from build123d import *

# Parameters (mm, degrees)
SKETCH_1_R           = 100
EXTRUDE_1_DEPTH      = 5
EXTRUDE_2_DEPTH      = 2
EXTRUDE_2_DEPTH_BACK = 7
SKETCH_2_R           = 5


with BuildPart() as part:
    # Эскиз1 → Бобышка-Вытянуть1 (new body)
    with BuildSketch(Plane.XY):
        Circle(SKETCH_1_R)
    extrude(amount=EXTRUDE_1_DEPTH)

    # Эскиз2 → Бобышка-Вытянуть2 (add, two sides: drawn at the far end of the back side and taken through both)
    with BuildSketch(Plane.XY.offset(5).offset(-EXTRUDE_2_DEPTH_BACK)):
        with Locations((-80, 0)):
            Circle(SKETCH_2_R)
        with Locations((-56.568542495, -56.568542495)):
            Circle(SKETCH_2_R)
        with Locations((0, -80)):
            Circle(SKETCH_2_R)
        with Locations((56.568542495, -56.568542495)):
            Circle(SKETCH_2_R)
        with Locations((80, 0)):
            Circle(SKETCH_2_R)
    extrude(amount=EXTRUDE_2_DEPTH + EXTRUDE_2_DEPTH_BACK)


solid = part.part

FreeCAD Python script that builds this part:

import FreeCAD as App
import Part
import Sketcher
Q = App.Units.Quantity

doc = App.newDocument("Part")
body = doc.addObject("PartDesign::Body", "Body")

# Sketch on XY plane
sketch1 = doc.addObject("Sketcher::SketchObject", "Sketch")
body.addObject(sketch1)
sketch1.AttachmentSupport = (doc.XY_Plane, [""])
sketch1.MapMode = "FlatFace"
sketch1.addGeometry(Part.Circle(App.Vector(0, 0, 0), App.Vector(0, 0, 1), 100), False)
sketch1.addConstraint(Sketcher.Constraint("Coincident", 0, 3, -1, 1))
sketch1.addConstraint(Sketcher.Constraint("Diameter", 0, Q("200 mm")))
pad1 = doc.addObject("PartDesign::Pad", "Pad")
body.addObject(pad1)
pad1.Profile = sketch1
pad1.Length = 5

# Sketch on XY plane
sketch2 = doc.addObject("Sketcher::SketchObject", "Sketch001")
body.addObject(sketch2)
sketch2.AttachmentSupport = (doc.XY_Plane, [""])
sketch2.MapMode = "FlatFace"
sketch2.AttachmentOffset = App.Placement(App.Vector(0, 0, 5), App.Rotation())
sketch2.addGeometry(Part.Circle(App.Vector(-80, 0, 0), App.Vector(0, 0, 1), 5), False)
sketch2.addGeometry(Part.Circle(App.Vector(-57, -57, 0), App.Vector(0, 0, 1), 5), False)
sketch2.addGeometry(Part.Circle(App.Vector(0, -80, 0), App.Vector(0, 0, 1), 5), False)
sketch2.addGeometry(Part.Circle(App.Vector(57, -57, 0), App.Vector(0, 0, 1), 5), False)
sketch2.addGeometry(Part.Circle(App.Vector(80, 0, 0), App.Vector(0, 0, 1), 5), False)
sketch2.addConstraint(Sketcher.Constraint("Equal", 0, 1))
sketch2.addConstraint(Sketcher.Constraint("Equal", 1, 2))
sketch2.addConstraint(Sketcher.Constraint("Equal", 2, 3))
sketch2.addConstraint(Sketcher.Constraint("Equal", 3, 4))
sketch2.addConstraint(Sketcher.Constraint("Symmetric", 0, 3, 4, 3, -1, 1))
sketch2.addConstraint(Sketcher.Constraint("Symmetric", 1, 3, 3, 3, -2))
sketch2.addConstraint(Sketcher.Constraint("PointOnObject", 0, 3, -1))
sketch2.addConstraint(Sketcher.Constraint("PointOnObject", 2, 3, -2))
sketch2.addConstraint(Sketcher.Constraint("Diameter", 0, Q("10 mm")))
sketch2.addConstraint(Sketcher.Constraint("DistanceX", 0, 3, -1, 1, Q("80 mm")))
sketch2.addConstraint(Sketcher.Constraint("DistanceY", 2, 3, -1, 1, Q("80 mm")))
sketch2.addConstraint(Sketcher.Constraint("DistanceX", 1, 3, -1, 1, Q("56.568542 mm")))
sketch2.addConstraint(Sketcher.Constraint("DistanceY", 1, 3, -1, 1, Q("56.568542 mm")))
pad2 = doc.addObject("PartDesign::Pad", "Pad001")
body.addObject(pad2)
pad2.Profile = sketch2
pad2.Type = "TwoLengths"
pad2.Length = 2
pad2.Length2 = 7

doc.recompute()
